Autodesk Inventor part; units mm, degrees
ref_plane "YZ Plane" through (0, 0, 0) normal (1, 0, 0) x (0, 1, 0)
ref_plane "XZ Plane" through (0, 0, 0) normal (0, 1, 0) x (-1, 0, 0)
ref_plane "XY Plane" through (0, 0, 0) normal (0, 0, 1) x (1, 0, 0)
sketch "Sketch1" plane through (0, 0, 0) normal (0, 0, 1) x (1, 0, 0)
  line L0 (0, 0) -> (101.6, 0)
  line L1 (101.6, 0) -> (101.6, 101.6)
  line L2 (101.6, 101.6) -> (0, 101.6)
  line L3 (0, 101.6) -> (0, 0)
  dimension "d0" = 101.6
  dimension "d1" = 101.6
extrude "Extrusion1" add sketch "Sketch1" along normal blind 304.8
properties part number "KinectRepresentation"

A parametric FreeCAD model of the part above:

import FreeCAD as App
import Part
import Sketcher
from FreeCAD import Vector
Q = App.Units.Quantity


def add_polygon(sketch, points):
    """Adds a closed chain of lines whose ends are joined by coincident constraints."""
    first, n = sketch.GeometryCount, len(points)
    for a, b in zip(points, points[1:] + points[:1]):
        sketch.addGeometry(Part.LineSegment(App.Vector(*a, 0), App.Vector(*b, 0)), False)
    for i in range(n):
        sketch.addConstraint(Sketcher.Constraint("Coincident", first + i, 2, first + (i + 1) % n, 1))

doc = App.newDocument("Part")
body = doc.addObject("PartDesign::Body", "Body")

# Sketch on XY plane
sketch1 = doc.addObject("Sketcher::SketchObject", "Sketch")
body.addObject(sketch1)
sketch1.AttachmentSupport = (doc.XY_Plane, [""])
sketch1.MapMode = "FlatFace"
add_polygon(sketch1, [(0, 102), (0, 0), (102, 0), (102, 102)])  # lines 0-3
sketch1.addConstraint([
    Sketcher.Constraint("Vertical", 0),
    Sketcher.Constraint("Horizontal", 1),
    Sketcher.Constraint("Vertical", 2),
    Sketcher.Constraint("Horizontal", 3),
    Sketcher.Constraint("Coincident", 0, 2, -1, 1),
    Sketcher.Constraint("Equal", 3, 0),
    Sketcher.Constraint("DistanceX", 1, 1, 1, 2, Q("4 in")),
])
pad1 = doc.addObject("PartDesign::Pad", "Pad")
body.addObject(pad1)
pad1.Profile = sketch1
pad1.Length = Q("12 in")

doc.recompute()
